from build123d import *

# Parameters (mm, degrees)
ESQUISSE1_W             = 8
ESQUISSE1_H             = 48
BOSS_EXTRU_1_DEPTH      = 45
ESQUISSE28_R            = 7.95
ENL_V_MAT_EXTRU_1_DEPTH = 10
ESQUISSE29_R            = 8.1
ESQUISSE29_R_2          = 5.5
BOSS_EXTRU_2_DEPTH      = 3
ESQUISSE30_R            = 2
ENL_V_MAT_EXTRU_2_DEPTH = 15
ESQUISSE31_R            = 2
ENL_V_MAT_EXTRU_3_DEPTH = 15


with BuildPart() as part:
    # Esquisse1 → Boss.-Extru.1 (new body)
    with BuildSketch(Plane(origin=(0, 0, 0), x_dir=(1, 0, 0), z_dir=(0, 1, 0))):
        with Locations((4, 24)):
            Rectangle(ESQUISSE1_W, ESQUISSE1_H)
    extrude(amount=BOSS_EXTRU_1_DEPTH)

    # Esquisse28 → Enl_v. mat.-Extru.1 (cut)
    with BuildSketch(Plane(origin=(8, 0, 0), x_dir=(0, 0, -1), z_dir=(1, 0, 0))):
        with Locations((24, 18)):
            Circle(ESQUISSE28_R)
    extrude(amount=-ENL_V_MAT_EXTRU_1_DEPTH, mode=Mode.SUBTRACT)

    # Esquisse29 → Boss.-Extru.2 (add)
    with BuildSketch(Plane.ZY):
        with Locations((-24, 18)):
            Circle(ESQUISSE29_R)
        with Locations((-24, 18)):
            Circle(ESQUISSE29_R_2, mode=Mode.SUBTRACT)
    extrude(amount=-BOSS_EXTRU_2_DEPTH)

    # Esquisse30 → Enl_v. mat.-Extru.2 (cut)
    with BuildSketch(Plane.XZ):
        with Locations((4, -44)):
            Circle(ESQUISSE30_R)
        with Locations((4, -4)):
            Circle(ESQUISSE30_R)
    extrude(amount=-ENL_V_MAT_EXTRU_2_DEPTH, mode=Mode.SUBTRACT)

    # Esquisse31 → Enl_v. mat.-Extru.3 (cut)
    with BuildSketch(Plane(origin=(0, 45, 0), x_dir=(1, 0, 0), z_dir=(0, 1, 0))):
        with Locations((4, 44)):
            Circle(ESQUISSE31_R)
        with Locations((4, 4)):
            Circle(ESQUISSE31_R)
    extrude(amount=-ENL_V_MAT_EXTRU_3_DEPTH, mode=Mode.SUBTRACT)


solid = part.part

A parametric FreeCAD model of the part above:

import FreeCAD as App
import Part
import Sketcher

V = App.Vector
Q = App.Units.Quantity

doc = App.newDocument("Part")
body = doc.addObject("PartDesign::Body", "Body")

sketch1 = body.newObject("Sketcher::SketchObject", "Sketch")
sketch1.AttachmentSupport = (doc.getObject("XZ_Plane"), [""])
sketch1.MapMode = "FlatFace"
sketch1.addGeometry(Part.LineSegment(V(0, -48, 0), V(0, 0, 0)), False)
sketch1.addGeometry(Part.LineSegment(V(0, 0, 0), V(8, 0, 0)), False)
sketch1.addGeometry(Part.LineSegment(V(8, 0, 0), V(8, -48, 0)), False)
sketch1.addGeometry(Part.LineSegment(V(8, -48, 0), V(0, -48, 0)), False)
sketch1.addConstraint(Sketcher.Constraint("Coincident", 0, 2, 1, 1))
sketch1.addConstraint(Sketcher.Constraint("Coincident", 1, 2, 2, 1))
sketch1.addConstraint(Sketcher.Constraint("Coincident", 2, 2, 3, 1))
sketch1.addConstraint(Sketcher.Constraint("Coincident", 3, 2, 0, 1))
sketch1.addConstraint(Sketcher.Constraint("Vertical", 0))
sketch1.addConstraint(Sketcher.Constraint("Horizontal", 1))
sketch1.addConstraint(Sketcher.Constraint("Vertical", 2))
sketch1.addConstraint(Sketcher.Constraint("Horizontal", 3))
sketch1.addConstraint(Sketcher.Constraint("Coincident", 0, 2, -1, 1))
sketch1.addConstraint(Sketcher.Constraint("DistanceX", 1, 1, 1, 2, Q("8 mm")))
sketch1.addConstraint(Sketcher.Constraint("DistanceY", 0, 1, 0, 2, Q("48 mm")))
pad1 = body.newObject("PartDesign::Pad", "Pad")
pad1.Profile = sketch1
pad1.Length = 45
pad1.Reversed = True

sketch2 = body.newObject("Sketcher::SketchObject", "Sketch001")
sketch2.AttachmentSupport = (doc.getObject("YZ_Plane"), [""])
sketch2.MapMode = "FlatFace"
sketch2.AttachmentOffset = App.Placement(V(0, 0, 8), App.Rotation())
sketch2.addGeometry(Part.Circle(V(18, -24, 0), V(0, 0, 1), 8), False)
sketch2.addConstraint(Sketcher.Constraint("Diameter", 0, Q("15.9 mm")))
sketch2.addConstraint(Sketcher.Constraint("DistanceX", -1, 1, 0, 3, Q("18 mm")))
sketch2.addConstraint(Sketcher.Constraint("DistanceY", 0, 3, -1, 1, Q("24 mm")))
pocket1 = body.newObject("PartDesign::Pocket", "Pocket")
pocket1.Profile = sketch2
pocket1.Length = 10

sketch3 = body.newObject("Sketcher::SketchObject", "Sketch002")
sketch3.AttachmentSupport = (doc.getObject("YZ_Plane"), [""])
sketch3.MapMode = "FlatFace"
sketch3.addGeometry(Part.Circle(V(18, -24, 0), V(0, 0, 1), 8), False)
sketch3.addGeometry(Part.Circle(V(18, -24, 0), V(0, 0, 1), 6), False)
sketch3.addConstraint(Sketcher.Constraint("Coincident", 1, 3, 0, 3))
sketch3.addConstraint(Sketcher.Constraint("Diameter", 1, Q("11 mm")))
sketch3.addConstraint(Sketcher.Constraint("Diameter", 0, Q("16.2 mm")))
sketch3.addConstraint(Sketcher.Constraint("DistanceX", -1, 1, 0, 3, Q("18 mm")))
sketch3.addConstraint(Sketcher.Constraint("DistanceY", 0, 3, -1, 1, Q("24 mm")))
pad2 = body.newObject("PartDesign::Pad", "Pad001")
pad2.Profile = sketch3
pad2.Length = 3

sketch4 = body.newObject("Sketcher::SketchObject", "Sketch003")
sketch4.AttachmentSupport = (doc.getObject("XZ_Plane"), [""])
sketch4.MapMode = "FlatFace"
sketch4.addGeometry(Part.Circle(V(4, -44, 0), V(0, 0, 1), 2), False)
sketch4.addGeometry(Part.Circle(V(4, -4, 0), V(0, 0, 1), 2), False)
sketch4.addConstraint(Sketcher.Constraint("Equal", 0, 1))
sketch4.addConstraint(Sketcher.Constraint("Vertical", 0, 3, 1, 3))
sketch4.addConstraint(Sketcher.Constraint("Diameter", 0, Q("4 mm")))
sketch4.addConstraint(Sketcher.Constraint("DistanceX", -1, 1, 0, 3, Q("4 mm")))
sketch4.addConstraint(Sketcher.Constraint("DistanceY", 0, 3, -1, 1, Q("44 mm")))
sketch4.addConstraint(Sketcher.Constraint("DistanceY", 1, 3, -1, 1, Q("4 mm")))
pocket2 = body.newObject("PartDesign::Pocket", "Pocket001")
pocket2.Profile = sketch4
pocket2.Length = 15

sketch5 = body.newObject("Sketcher::SketchObject", "Sketch004")
sketch5.AttachmentSupport = (doc.getObject("XZ_Plane"), [""])
sketch5.MapMode = "FlatFace"
sketch5.AttachmentOffset = App.Placement(V(0, 0, -45), App.Rotation())
sketch5.addGeometry(Part.Circle(V(4, -44, 0), V(0, 0, 1), 2), False)
sketch5.addGeometry(Part.Circle(V(4, -4, 0), V(0, 0, 1), 2), False)
sketch5.addConstraint(Sketcher.Constraint("Equal", 0, 1))
sketch5.addConstraint(Sketcher.Constraint("Vertical", 0, 3, 1, 3))
sketch5.addConstraint(Sketcher.Constraint("Diameter", 0, Q("4 mm")))
sketch5.addConstraint(Sketcher.Constraint("DistanceX", -1, 1, 0, 3, Q("4 mm")))
sketch5.addConstraint(Sketcher.Constraint("DistanceY", 0, 3, -1, 1, Q("44 mm")))
sketch5.addConstraint(Sketcher.Constraint("DistanceY", 1, 3, -1, 1, Q("4 mm")))
pocket3 = body.newObject("PartDesign::Pocket", "Pocket002")
pocket3.Profile = sketch5
pocket3.Length = 15
pocket3.Reversed = True

doc.recompute()
